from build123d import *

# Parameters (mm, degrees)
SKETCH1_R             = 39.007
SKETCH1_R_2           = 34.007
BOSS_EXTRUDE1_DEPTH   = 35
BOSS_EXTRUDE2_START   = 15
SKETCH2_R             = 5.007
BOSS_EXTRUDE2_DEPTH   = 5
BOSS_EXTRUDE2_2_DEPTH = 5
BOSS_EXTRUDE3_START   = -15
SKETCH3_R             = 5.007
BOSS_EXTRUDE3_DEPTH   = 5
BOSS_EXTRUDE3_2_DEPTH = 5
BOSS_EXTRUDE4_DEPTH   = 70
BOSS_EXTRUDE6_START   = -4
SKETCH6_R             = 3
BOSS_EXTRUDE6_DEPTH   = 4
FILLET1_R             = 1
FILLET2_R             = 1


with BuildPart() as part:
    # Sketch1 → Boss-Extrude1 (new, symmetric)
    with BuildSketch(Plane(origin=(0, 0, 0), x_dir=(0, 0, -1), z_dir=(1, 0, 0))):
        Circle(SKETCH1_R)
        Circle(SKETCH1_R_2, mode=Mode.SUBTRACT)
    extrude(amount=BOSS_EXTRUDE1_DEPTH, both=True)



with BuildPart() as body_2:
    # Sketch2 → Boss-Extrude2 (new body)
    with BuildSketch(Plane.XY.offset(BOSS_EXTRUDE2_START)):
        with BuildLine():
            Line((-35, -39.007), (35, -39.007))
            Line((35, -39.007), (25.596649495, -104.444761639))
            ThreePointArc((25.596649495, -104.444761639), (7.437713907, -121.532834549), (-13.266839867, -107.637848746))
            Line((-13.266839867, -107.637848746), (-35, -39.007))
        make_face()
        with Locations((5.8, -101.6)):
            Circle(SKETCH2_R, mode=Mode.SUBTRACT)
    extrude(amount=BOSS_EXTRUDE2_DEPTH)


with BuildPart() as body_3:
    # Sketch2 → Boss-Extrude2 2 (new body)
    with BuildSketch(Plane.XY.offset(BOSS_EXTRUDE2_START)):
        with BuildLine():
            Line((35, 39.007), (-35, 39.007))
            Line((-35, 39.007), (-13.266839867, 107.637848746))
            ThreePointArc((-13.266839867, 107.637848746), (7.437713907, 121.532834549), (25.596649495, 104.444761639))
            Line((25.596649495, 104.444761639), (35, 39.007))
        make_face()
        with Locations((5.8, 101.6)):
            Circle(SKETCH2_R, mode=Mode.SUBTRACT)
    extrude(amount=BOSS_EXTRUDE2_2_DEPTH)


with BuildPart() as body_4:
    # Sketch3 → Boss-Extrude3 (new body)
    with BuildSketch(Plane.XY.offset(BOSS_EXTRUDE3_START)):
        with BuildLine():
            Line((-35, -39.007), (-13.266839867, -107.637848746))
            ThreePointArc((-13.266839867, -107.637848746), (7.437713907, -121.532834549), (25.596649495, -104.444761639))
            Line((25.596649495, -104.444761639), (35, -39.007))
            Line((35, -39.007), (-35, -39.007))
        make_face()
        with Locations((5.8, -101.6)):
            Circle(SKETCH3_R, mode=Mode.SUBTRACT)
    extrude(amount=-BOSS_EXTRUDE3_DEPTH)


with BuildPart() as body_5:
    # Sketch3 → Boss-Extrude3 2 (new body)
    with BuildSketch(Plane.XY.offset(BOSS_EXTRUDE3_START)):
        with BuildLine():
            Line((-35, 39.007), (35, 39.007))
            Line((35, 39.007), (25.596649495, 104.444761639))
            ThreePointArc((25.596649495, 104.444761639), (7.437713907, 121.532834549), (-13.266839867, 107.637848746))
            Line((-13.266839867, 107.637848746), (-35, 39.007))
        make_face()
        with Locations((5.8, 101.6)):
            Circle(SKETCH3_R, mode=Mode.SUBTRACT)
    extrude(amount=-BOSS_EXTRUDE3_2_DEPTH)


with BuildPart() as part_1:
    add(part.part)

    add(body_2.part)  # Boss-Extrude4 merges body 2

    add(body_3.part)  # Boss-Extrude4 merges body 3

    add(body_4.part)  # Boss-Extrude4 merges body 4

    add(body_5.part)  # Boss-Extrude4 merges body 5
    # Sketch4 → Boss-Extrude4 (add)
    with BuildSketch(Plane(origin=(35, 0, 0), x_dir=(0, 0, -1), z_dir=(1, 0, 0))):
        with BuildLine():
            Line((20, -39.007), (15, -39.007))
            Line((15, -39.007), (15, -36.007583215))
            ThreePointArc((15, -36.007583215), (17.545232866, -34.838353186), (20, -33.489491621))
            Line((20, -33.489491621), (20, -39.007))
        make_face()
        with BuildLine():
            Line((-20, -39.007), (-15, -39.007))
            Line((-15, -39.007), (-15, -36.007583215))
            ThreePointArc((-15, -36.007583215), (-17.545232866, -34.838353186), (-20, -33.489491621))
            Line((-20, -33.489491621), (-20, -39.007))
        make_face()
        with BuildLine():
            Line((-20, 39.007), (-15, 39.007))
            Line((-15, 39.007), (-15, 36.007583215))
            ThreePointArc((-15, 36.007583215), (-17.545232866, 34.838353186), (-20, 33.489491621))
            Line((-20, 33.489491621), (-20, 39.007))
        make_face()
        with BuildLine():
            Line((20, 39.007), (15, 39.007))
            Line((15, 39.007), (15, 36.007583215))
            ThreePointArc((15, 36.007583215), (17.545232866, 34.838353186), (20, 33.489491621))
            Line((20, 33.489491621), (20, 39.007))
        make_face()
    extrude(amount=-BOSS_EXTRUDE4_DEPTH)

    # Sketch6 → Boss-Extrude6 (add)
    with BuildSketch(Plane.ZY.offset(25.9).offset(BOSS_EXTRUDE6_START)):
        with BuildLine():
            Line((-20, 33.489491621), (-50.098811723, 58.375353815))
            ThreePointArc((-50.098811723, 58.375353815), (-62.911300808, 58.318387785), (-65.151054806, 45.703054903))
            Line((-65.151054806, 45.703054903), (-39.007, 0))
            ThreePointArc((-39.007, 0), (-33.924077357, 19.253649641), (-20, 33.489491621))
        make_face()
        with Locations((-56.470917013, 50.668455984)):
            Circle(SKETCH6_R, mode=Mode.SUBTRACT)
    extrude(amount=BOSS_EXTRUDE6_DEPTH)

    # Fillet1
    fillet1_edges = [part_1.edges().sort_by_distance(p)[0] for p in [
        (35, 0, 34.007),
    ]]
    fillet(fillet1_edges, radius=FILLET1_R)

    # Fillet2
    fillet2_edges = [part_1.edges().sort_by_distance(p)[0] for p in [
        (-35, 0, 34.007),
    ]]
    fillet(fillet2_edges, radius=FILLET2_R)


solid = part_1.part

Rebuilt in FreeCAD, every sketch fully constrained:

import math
import FreeCAD as App
import Part
import Sketcher

V = App.Vector


def edges_at(feature, points):
    """Names of the edges that pass closest to the given points."""
    edges = feature.Shape.Edges
    near = lambda p: min(range(len(edges)), key=lambda i: edges[i].distToShape(Part.Vertex(*p))[0])
    return sorted({f"Edge{near(p) + 1}" for p in points})

doc = App.newDocument("Part")
body = doc.addObject("PartDesign::Body", "Body")

sketch1 = doc.addObject("Sketcher::SketchObject", "Sketch")
body.addObject(sketch1)
sketch1.AttachmentSupport = (doc.YZ_Plane, [""])
sketch1.MapMode = "FlatFace"
sketch1.addGeometry([
    Part.Circle(V(0, 0, 0), V(0, 0, 1), 39.007),
    Part.Circle(V(0, 0, 0), V(0, 0, 1), 34.007),
], False)
sketch1.addConstraint([
    Sketcher.Constraint("Coincident", 0, 3, -1, 1),
    Sketcher.Constraint("Coincident", 1, 3, -1, 1),
    Sketcher.Constraint("Diameter", 0, 78.014),
    Sketcher.Constraint("Diameter", 1, 68.014),
])
pad1 = doc.addObject("PartDesign::Pad", "Pad")
body.addObject(pad1)
pad1.Profile = sketch1
pad1.Length = 70
pad1.Midplane = True
body2 = doc.addObject("PartDesign::Body", "Body001")

sketch2 = doc.addObject("Sketcher::SketchObject", "Sketch001")
body2.addObject(sketch2)
sketch2.AttachmentSupport = (doc.getObject("XY_Plane001"), [""])
sketch2.MapMode = "FlatFace"
sketch2.AttachmentOffset = App.Placement(V(0, 0, 15), App.Rotation())
sketch2.addGeometry([
    Part.LineSegment(V(35, -39.007, 0), V(-35, -39.007, 0)),
    Part.LineSegment(V(-35, -39.007, 0), V(-13.26684, -107.637849, 0)),
    Part.ArcOfCircle(Part.Circle(V(5.8, -101.6, 0), V(0, 0, 1), 20), math.radians(-162.428697), math.radians(-8.177375)),
    Part.LineSegment(V(25.596649, -104.444762, 0), V(35, -39.007, 0)),
    Part.Circle(V(5.8, -101.6, 0), V(0, 0, 1), 5.007),
], False)
sketch2.addConstraint([
    Sketcher.Constraint("Coincident", 0, 2, 1, 1),
    Sketcher.Constraint("Tangent", 1, 2, 2, 1),
    Sketcher.Constraint("Tangent", 2, 2, 3, 1),
    Sketcher.Constraint("Coincident", 3, 2, 0, 1),
    Sketcher.Constraint("Horizontal", 0),
    Sketcher.Constraint("Coincident", 4, 3, 2, 3),
    Sketcher.Constraint("Radius", 2, 20.0),
    Sketcher.Constraint("DistanceX", 0, 2, 0, 1, 70.0),
    Sketcher.Constraint("Diameter", 4, 10.014),
    Sketcher.Constraint("DistanceX", 0, 2, -1, 1, 35.0),
    Sketcher.Constraint("DistanceX", -1, 1, 2, 3, 5.8),
    Sketcher.Constraint("DistanceY", 2, 3, -1, 1, 101.6),
    Sketcher.Constraint("DistanceY", 0, 2, -1, 1, 39.007),
])
pad2 = doc.addObject("PartDesign::Pad", "Pad001")
body2.addObject(pad2)
pad2.Profile = sketch2
pad2.Length = 5
body3 = doc.addObject("PartDesign::Body", "Body002")

sketch3 = doc.addObject("Sketcher::SketchObject", "Sketch002")
body3.addObject(sketch3)
sketch3.AttachmentSupport = (doc.getObject("XY_Plane002"), [""])
sketch3.MapMode = "FlatFace"
sketch3.AttachmentOffset = App.Placement(V(0, 0, 15), App.Rotation())
sketch3.addGeometry([
    Part.LineSegment(V(-35, 39.007, 0), V(35, 39.007, 0)),
    Part.LineSegment(V(35, 39.007, 0), V(25.596649, 104.444762, 0)),
    Part.ArcOfCircle(Part.Circle(V(5.8, 101.6, 0), V(0, 0, 1), 20), math.radians(8.177375), math.radians(162.428697)),
    Part.LineSegment(V(-13.26684, 107.637849, 0), V(-35, 39.007, 0)),
    Part.Circle(V(5.8, 101.6, 0), V(0, 0, 1), 5.007),
], False)
sketch3.addConstraint([
    Sketcher.Constraint("Coincident", 0, 2, 1, 1),
    Sketcher.Constraint("Tangent", 1, 2, 2, 1),
    Sketcher.Constraint("Tangent", 2, 2, 3, 1),
    Sketcher.Constraint("Coincident", 3, 2, 0, 1),
    Sketcher.Constraint("Horizontal", 0),
    Sketcher.Constraint("Coincident", 4, 3, 2, 3),
    Sketcher.Constraint("Radius", 2, 20.0),
    Sketcher.Constraint("DistanceX", 0, 1, 0, 2, 70.0),
    Sketcher.Constraint("Diameter", 4, 10.014),
    Sketcher.Constraint("DistanceX", -1, 1, 0, 2, 35.0),
    Sketcher.Constraint("DistanceX", -1, 1, 2, 3, 5.8),
    Sketcher.Constraint("DistanceY", -1, 1, 2, 3, 101.6),
    Sketcher.Constraint("DistanceY", -1, 1, 0, 2, 39.007),
])
pad3 = doc.addObject("PartDesign::Pad", "Pad002")
body3.addObject(pad3)
pad3.Profile = sketch3
pad3.Length = 5
body4 = doc.addObject("PartDesign::Body", "Body003")

sketch4 = doc.addObject("Sketcher::SketchObject", "Sketch003")
body4.addObject(sketch4)
sketch4.AttachmentSupport = (doc.getObject("XY_Plane003"), [""])
sketch4.MapMode = "FlatFace"
sketch4.AttachmentOffset = App.Placement(V(0, 0, -15), App.Rotation())
sketch4.addGeometry([
    Part.LineSegment(V(-35, -39.007, 0), V(-13.26684, -107.637849, 0)),
    Part.ArcOfCircle(Part.Circle(V(5.8, -101.6, 0), V(0, 0, 1), 20), math.radians(-162.428697), math.radians(-8.177375)),
    Part.LineSegment(V(25.596649, -104.444762, 0), V(35, -39.007, 0)),
    Part.LineSegment(V(35, -39.007, 0), V(-35, -39.007, 0)),
    Part.Circle(V(5.8, -101.6, 0), V(0, 0, 1), 5.007),
], False)
sketch4.addConstraint([
    Sketcher.Constraint("Tangent", 0, 2, 1, 1),
    Sketcher.Constraint("Tangent", 1, 2, 2, 1),
    Sketcher.Constraint("Coincident", 2, 2, 3, 1),
    Sketcher.Constraint("Coincident", 3, 2, 0, 1),
    Sketcher.Constraint("Horizontal", 3),
    Sketcher.Constraint("Coincident", 4, 3, 1, 3),
    Sketcher.Constraint("Radius", 1, 20.0),
    Sketcher.Constraint("DistanceX", 3, 2, 3, 1, 70.0),
    Sketcher.Constraint("Diameter", 4, 10.014),
    Sketcher.Constraint("DistanceX", -1, 1, 2, 2, 35.0),
    Sketcher.Constraint("DistanceX", -1, 1, 1, 3, 5.8),
    Sketcher.Constraint("DistanceY", 1, 3, -1, 1, 101.6),
    Sketcher.Constraint("DistanceY", 2, 2, -1, 1, 39.007),
])
pad4 = doc.addObject("PartDesign::Pad", "Pad003")
body4.addObject(pad4)
pad4.Profile = sketch4
pad4.Length = 5
pad4.Reversed = True
body5 = doc.addObject("PartDesign::Body", "Body004")

sketch5 = doc.addObject("Sketcher::SketchObject", "Sketch004")
body5.addObject(sketch5)
sketch5.AttachmentSupport = (doc.getObject("XY_Plane004"), [""])
sketch5.MapMode = "FlatFace"
sketch5.AttachmentOffset = App.Placement(V(0, 0, -15), App.Rotation())
sketch5.addGeometry([
    Part.LineSegment(V(-35, 39.007, 0), V(35, 39.007, 0)),
    Part.LineSegment(V(35, 39.007, 0), V(25.596649, 104.444762, 0)),
    Part.ArcOfCircle(Part.Circle(V(5.8, 101.6, 0), V(0, 0, 1), 20), math.radians(8.177375), math.radians(162.428697)),
    Part.LineSegment(V(-13.26684, 107.637849, 0), V(-35, 39.007, 0)),
    Part.Circle(V(5.8, 101.6, 0), V(0, 0, 1), 5.007),
], False)
sketch5.addConstraint([
    Sketcher.Constraint("Coincident", 0, 2, 1, 1),
    Sketcher.Constraint("Tangent", 1, 2, 2, 1),
    Sketcher.Constraint("Tangent", 2, 2, 3, 1),
    Sketcher.Constraint("Coincident", 3, 2, 0, 1),
    Sketcher.Constraint("Horizontal", 0),
    Sketcher.Constraint("Coincident", 4, 3, 2, 3),
    Sketcher.Constraint("Radius", 2, 20.0),
    Sketcher.Constraint("DistanceX", 0, 1, 0, 2, 70.0),
    Sketcher.Constraint("Diameter", 4, 10.014),
    Sketcher.Constraint("DistanceX", -1, 1, 0, 2, 35.0),
    Sketcher.Constraint("DistanceX", -1, 1, 2, 3, 5.8),
    Sketcher.Constraint("DistanceY", -1, 1, 2, 3, 101.6),
    Sketcher.Constraint("DistanceY", -1, 1, 0, 2, 39.007),
])
pad5 = doc.addObject("PartDesign::Pad", "Pad004")
body5.addObject(pad5)
pad5.Profile = sketch5
pad5.Length = 5
pad5.Reversed = True
body.AllowCompound = True
doc.recompute()

boolean = doc.addObject("PartDesign::Boolean", "Boolean")
body.addObject(boolean)
boolean.Type = "Fuse"
boolean.addObjects([body2])
doc.recompute()

boolean2 = doc.addObject("PartDesign::Boolean", "Boolean001")
body.addObject(boolean2)
boolean2.Type = "Fuse"
boolean2.addObjects([body3])
doc.recompute()

boolean3 = doc.addObject("PartDesign::Boolean", "Boolean002")
body.addObject(boolean3)
boolean3.Type = "Fuse"
boolean3.addObjects([body4])
doc.recompute()

boolean4 = doc.addObject("PartDesign::Boolean", "Boolean003")
body.addObject(boolean4)
boolean4.Type = "Fuse"
boolean4.addObjects([body5])

sketch6 = doc.addObject("Sketcher::SketchObject", "Sketch005")
body.addObject(sketch6)
sketch6.AttachmentSupport = (doc.YZ_Plane, [""])
sketch6.MapMode = "FlatFace"
sketch6.AttachmentOffset = App.Placement(V(0, 0, 35), App.Rotation())
sketch6.addGeometry([
    Part.LineSegment(V(-39.007, -15, 0), V(-39.007, -20, 0)),
    Part.LineSegment(V(-39.007, -20, 0), V(-33.489492, -20, 0)),
    Part.ArcOfCircle(Part.Circle(V(0, 0, 0), V(0, 0, 1), 39.007), math.radians(-157.384419), math.radians(-149.154256)),
    Part.LineSegment(V(-36.007583, -15, 0), V(-39.007, -15, 0)),
    Part.LineSegment(V(-39.007, 20, 0), V(-39.007, 15, 0)),
    Part.LineSegment(V(-39.007, 15, 0), V(-36.007583, 15, 0)),
    Part.ArcOfCircle(Part.Circle(V(0, 0, 0), V(0, 0, 1), 39.007), math.radians(149.154256), math.radians(157.384419)),
    Part.LineSegment(V(-33.489492, 20, 0), V(-39.007, 20, 0)),
    Part.LineSegment(V(39.007, 15, 0), V(39.007, 20, 0)),
    Part.LineSegment(V(39.007, 20, 0), V(33.489492, 20, 0)),
    Part.ArcOfCircle(Part.Circle(V(0, 0, 0), V(0, 0, 1), 39.007), math.radians(22.615581), math.radians(30.845744)),
    Part.LineSegment(V(36.007583, 15, 0), V(39.007, 15, 0)),
    Part.LineSegment(V(39.007, -20, 0), V(39.007, -15, 0)),
    Part.LineSegment(V(39.007, -15, 0), V(36.007583, -15, 0)),
    Part.ArcOfCircle(Part.Circle(V(0, 0, 0), V(0, 0, 1), 39.007), math.radians(-30.845744), math.radians(-22.615581)),
    Part.LineSegment(V(33.489492, -20, 0), V(39.007, -20, 0)),
], False)
sketch6.addConstraint([
    Sketcher.Constraint("Coincident", 0, 2, 1, 1),
    Sketcher.Constraint("Coincident", 1, 2, 2, 2),
    Sketcher.Constraint("Coincident", 2, 1, 3, 1),
    Sketcher.Constraint("Coincident", 3, 2, 0, 1),
    Sketcher.Constraint("Coincident", 4, 2, 5, 1),
    Sketcher.Constraint("Coincident", 5, 2, 6, 2),
    Sketcher.Constraint("Coincident", 6, 1, 7, 1),
    Sketcher.Constraint("Coincident", 7, 2, 4, 1),
    Sketcher.Constraint("Coincident", 8, 2, 9, 1),
    Sketcher.Constraint("Coincident", 9, 2, 10, 2),
    Sketcher.Constraint("Coincident", 10, 1, 11, 1),
    Sketcher.Constraint("Coincident", 11, 2, 8, 1),
    Sketcher.Constraint("Coincident", 12, 2, 13, 1),
    Sketcher.Constraint("Coincident", 13, 2, 14, 2),
    Sketcher.Constraint("Coincident", 14, 1, 15, 1),
    Sketcher.Constraint("Coincident", 15, 2, 12, 1),
    Sketcher.Constraint("Vertical", 0),
    Sketcher.Constraint("Horizontal", 1),
    Sketcher.Constraint("Horizontal", 3),
    Sketcher.Constraint("Vertical", 4),
    Sketcher.Constraint("Horizontal", 5),
    Sketcher.Constraint("Horizontal", 7),
    Sketcher.Constraint("Vertical", 8),
    Sketcher.Constraint("Horizontal", 9),
    Sketcher.Constraint("Horizontal", 11),
    Sketcher.Constraint("Vertical", 12),
    Sketcher.Constraint("Horizontal", 13),
    Sketcher.Constraint("Horizontal", 15),
    Sketcher.Constraint("Coincident", 2, 3, -1, 1),
    Sketcher.Constraint("Coincident", 6, 3, -1, 1),
    Sketcher.Constraint("Coincident", 10, 3, -1, 1),
    Sketcher.Constraint("Coincident", 14, 3, -1, 1),
    Sketcher.Constraint("Equal", 2, 6),
    Sketcher.Constraint("Equal", 6, 10),
    Sketcher.Constraint("Equal", 10, 14),
    Sketcher.Constraint("Symmetric", 0, 2, 8, 2, -1, 1),
    Sketcher.Constraint("Symmetric", 4, 2, 12, 2, -1, 1),
    Sketcher.Constraint("Symmetric", 7, 2, 8, 2, -2),
    Sketcher.Constraint("Horizontal", 5, 2, 10, 1),
    Sketcher.Constraint("Horizontal", 3, 2, 12, 2),
    Sketcher.Constraint("Horizontal", 1, 2, 14, 1),
    Sketcher.Constraint("DistanceY", 0, 2, 0, 1, 5.0),
    Sketcher.Constraint("DistanceY", 0, 2, -1, 1, 20.0),
    Sketcher.Constraint("Radius", 2, 39.007),
    Sketcher.Constraint("DistanceX", 0, 2, -1, 1, 39.007),
])
pad6 = doc.addObject("PartDesign::Pad", "Pad005")
body.addObject(pad6)
pad6.Profile = sketch6
pad6.Length = 70
pad6.Reversed = True

sketch7 = doc.addObject("Sketcher::SketchObject", "Sketch006")
body.addObject(sketch7)
sketch7.AttachmentSupport = (doc.YZ_Plane, [""])
sketch7.MapMode = "FlatFace"
sketch7.AttachmentOffset = App.Placement(V(0, 0, -21.9), App.Rotation())
sketch7.addGeometry([
    Part.LineSegment(V(33.489492, -20, 0), V(58.375354, -50.098812, 0)),
    Part.ArcOfCircle(Part.Circle(V(50.668456, -56.470917, 0), V(0, 0, 1), 10), math.radians(-119.771358), math.radians(39.584129)),
    Part.LineSegment(V(45.703055, -65.151055, 0), V(0, -39.007, 0)),
    Part.ArcOfCircle(Part.Circle(V(0, 0, 0), V(0, 0, 1), 39.007), math.radians(-90), math.radians(-30.845744)),
    Part.Circle(V(50.668456, -56.470917, 0), V(0, 0, 1), 3),
], False)
sketch7.addConstraint([
    Sketcher.Constraint("Tangent", 0, 2, 1, 2),
    Sketcher.Constraint("Tangent", 1, 1, 2, 1),
    Sketcher.Constraint("Coincident", 2, 2, 3, 1),
    Sketcher.Constraint("Coincident", 3, 2, 0, 1),
    Sketcher.Constraint("Coincident", 3, 3, -1, 1),
    Sketcher.Constraint("Coincident", 4, 3, 1, 3),
    Sketcher.Constraint("PointOnObject", 2, 2, -2),
    Sketcher.Constraint("Diameter", 4, 6.0),
    Sketcher.Constraint("Radius", 1, 10.0),
    Sketcher.Constraint("DistanceY", 3, 2, -1, 1, 20.0),
    Sketcher.Constraint("Radius", 3, 39.007),
    Sketcher.Constraint("DistanceX", 1, 1, 4, 3, 4.965401),
    Sketcher.Constraint("DistanceX", 1, 1, 0, 2, 12.672299),
])
pad7 = doc.addObject("PartDesign::Pad", "Pad006")
body.addObject(pad7)
pad7.Profile = sketch7
pad7.Length = 4
pad7.Reversed = True
doc.recompute()

fillet = doc.addObject("PartDesign::Fillet", "Fillet")
body.addObject(fillet)
fillet.Base = (pad7, edges_at(pad7, [(35, 0, 34.007)]))
fillet.Radius = 1
doc.recompute()

fillet2 = doc.addObject("PartDesign::Fillet", "Fillet001")
body.addObject(fillet2)
fillet2.Base = (fillet, edges_at(fillet, [(-35, 0, 34.007)]))
fillet2.Radius = 1

doc.recompute()
